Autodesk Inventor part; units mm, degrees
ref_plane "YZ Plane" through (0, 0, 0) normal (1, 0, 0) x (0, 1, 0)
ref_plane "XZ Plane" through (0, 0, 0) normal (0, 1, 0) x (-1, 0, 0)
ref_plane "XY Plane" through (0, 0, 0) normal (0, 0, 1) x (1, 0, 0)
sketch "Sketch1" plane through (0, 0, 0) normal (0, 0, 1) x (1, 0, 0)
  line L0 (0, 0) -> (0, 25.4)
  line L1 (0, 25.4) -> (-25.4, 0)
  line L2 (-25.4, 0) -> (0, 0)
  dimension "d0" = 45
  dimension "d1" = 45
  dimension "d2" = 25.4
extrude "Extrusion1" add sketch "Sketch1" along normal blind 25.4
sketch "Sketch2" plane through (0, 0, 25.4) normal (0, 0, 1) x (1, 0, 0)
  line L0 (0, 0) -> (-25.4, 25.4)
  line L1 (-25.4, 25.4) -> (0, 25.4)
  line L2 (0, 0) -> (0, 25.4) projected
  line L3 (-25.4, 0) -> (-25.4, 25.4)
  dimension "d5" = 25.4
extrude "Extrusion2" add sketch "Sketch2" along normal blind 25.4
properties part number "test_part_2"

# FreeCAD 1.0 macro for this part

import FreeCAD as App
import Part
import Sketcher
Q = App.Units.Quantity


def add_polygon(sketch, points):
    """Adds a closed chain of lines whose ends are joined by coincident constraints."""
    first, n = sketch.GeometryCount, len(points)
    for a, b in zip(points, points[1:] + points[:1]):
        sketch.addGeometry(Part.LineSegment(App.Vector(*a, 0), App.Vector(*b, 0)), False)
    for i in range(n):
        sketch.addConstraint(Sketcher.Constraint("Coincident", first + i, 2, first + (i + 1) % n, 1))

doc = App.newDocument("Part")
params = doc.addObject("Spreadsheet::Sheet", "Params")
for row, (alias, value) in enumerate([
    ("sketch1_width", "1 in"),
    ("pad1_length", "1 in"),
    ("sketch2_width", "1 in"),
    ("pad2_length", "1 in"),
], start=1):
    params.set(f"A{row}", alias)
    params.set(f"B{row}", "=" + value)
    params.setAlias(f"B{row}", alias)

body = doc.addObject("PartDesign::Body", "Body")

# Sketch on XY plane
sketch1 = body.newObject("Sketcher::SketchObject", "Sketch")
sketch1.AttachmentSupport = (doc.getObject("XY_Plane"), [""])
sketch1.MapMode = "FlatFace"
add_polygon(sketch1, [(-25.4, 0), (0, 0), (0, 25.4)])  # lines 0-2
sketch1.addConstraint([
    Sketcher.Constraint("Horizontal", 0),
    Sketcher.Constraint("Vertical", 1),
    Sketcher.Constraint("Coincident", 0, 2, -1, 1),
    Sketcher.Constraint("Equal", 0, 1),
    Sketcher.Constraint("DistanceX", 0, 1, 0, 2, Q("1 in")),
])
sketch1.setExpression("Constraints[7]", "Params.sketch1_width")
pad1 = body.newObject("PartDesign::Pad", "Pad")
pad1.Profile = sketch1
pad1.setExpression("Length", "Params.pad1_length")

# Sketch on XY plane
sketch2 = body.newObject("Sketcher::SketchObject", "Sketch001")
sketch2.AttachmentSupport = (doc.getObject("XY_Plane"), [""])
sketch2.MapMode = "FlatFace"
sketch2.AttachmentOffset = App.Placement(App.Vector(0, 0, 1 * 25.4), App.Rotation())
add_polygon(sketch2, [(-25.4, 25.4), (0, 0), (0, 25.4)])  # lines 0-2
sketch2.addConstraint([
    Sketcher.Constraint("Vertical", 1),
    Sketcher.Constraint("Horizontal", 2),
    Sketcher.Constraint("Coincident", 0, 2, -1, 1),
    Sketcher.Constraint("Equal", 2, 1),
    Sketcher.Constraint("DistanceX", 2, 2, 2, 1, Q("1 in")),
])
sketch2.setExpression("Constraints[7]", "Params.sketch2_width")
pad2 = body.newObject("PartDesign::Pad", "Pad001")
pad2.Profile = sketch2
pad2.setExpression("Length", "Params.pad2_length")

doc.recompute()
